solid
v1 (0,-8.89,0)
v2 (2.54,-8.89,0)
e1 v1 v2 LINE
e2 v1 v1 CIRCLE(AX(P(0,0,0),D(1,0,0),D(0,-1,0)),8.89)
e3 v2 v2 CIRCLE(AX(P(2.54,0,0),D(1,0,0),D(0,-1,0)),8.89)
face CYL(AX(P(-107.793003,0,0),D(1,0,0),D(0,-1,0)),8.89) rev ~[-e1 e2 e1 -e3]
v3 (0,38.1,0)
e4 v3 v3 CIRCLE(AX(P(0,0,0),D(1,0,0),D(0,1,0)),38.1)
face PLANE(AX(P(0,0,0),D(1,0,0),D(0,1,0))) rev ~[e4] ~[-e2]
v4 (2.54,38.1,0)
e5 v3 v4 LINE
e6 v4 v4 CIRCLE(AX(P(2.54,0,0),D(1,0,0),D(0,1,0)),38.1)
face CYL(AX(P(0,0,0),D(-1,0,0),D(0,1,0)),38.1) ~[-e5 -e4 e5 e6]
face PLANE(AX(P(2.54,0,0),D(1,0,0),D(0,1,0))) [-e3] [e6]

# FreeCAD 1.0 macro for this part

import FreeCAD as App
import Part
import Sketcher
from FreeCAD import Vector
Q = App.Units.Quantity

doc = App.newDocument("Part")
body = doc.addObject("PartDesign::Body", "Body")

sketch1 = doc.addObject("Sketcher::SketchObject", "Sketch")
body.addObject(sketch1)
sketch1.AttachmentSupport = (doc.YZ_Plane, [""])
sketch1.MapMode = "FlatFace"
sketch1.addGeometry(Part.Circle(Vector(0, 0, 0), Vector(0, 0, 1), 38.1), False)
sketch1.addConstraint(Sketcher.Constraint("Coincident", 0, 3, -1, 1))
sketch1.addConstraint(Sketcher.Constraint("Diameter", 0, Q("3 in")))
pad1 = doc.addObject("PartDesign::Pad", "Pad")
body.addObject(pad1)
pad1.Profile = sketch1
pad1.Length = Q("0.1 in")

sketch2 = doc.addObject("Sketcher::SketchObject", "Sketch001")
body.addObject(sketch2)
sketch2.AttachmentSupport = (doc.YZ_Plane, [""])
sketch2.MapMode = "FlatFace"
sketch2.addGeometry(Part.Circle(Vector(0, 0, 0), Vector(0, 0, 1), 8.89), False)
sketch2.addConstraint(Sketcher.Constraint("Coincident", 0, 3, -1, 1))
sketch2.addConstraint(Sketcher.Constraint("Diameter", 0, Q("0.7 in")))
doc.recompute()
hole = doc.addObject("PartDesign::Hole", "Hole")
body.addObject(hole)
hole.Profile = sketch2
hole.ThreadType = "None"
hole.Diameter = Q("0.7 in")
hole.DepthType = "ThroughAll"
hole.Reversed = True

doc.recompute()
